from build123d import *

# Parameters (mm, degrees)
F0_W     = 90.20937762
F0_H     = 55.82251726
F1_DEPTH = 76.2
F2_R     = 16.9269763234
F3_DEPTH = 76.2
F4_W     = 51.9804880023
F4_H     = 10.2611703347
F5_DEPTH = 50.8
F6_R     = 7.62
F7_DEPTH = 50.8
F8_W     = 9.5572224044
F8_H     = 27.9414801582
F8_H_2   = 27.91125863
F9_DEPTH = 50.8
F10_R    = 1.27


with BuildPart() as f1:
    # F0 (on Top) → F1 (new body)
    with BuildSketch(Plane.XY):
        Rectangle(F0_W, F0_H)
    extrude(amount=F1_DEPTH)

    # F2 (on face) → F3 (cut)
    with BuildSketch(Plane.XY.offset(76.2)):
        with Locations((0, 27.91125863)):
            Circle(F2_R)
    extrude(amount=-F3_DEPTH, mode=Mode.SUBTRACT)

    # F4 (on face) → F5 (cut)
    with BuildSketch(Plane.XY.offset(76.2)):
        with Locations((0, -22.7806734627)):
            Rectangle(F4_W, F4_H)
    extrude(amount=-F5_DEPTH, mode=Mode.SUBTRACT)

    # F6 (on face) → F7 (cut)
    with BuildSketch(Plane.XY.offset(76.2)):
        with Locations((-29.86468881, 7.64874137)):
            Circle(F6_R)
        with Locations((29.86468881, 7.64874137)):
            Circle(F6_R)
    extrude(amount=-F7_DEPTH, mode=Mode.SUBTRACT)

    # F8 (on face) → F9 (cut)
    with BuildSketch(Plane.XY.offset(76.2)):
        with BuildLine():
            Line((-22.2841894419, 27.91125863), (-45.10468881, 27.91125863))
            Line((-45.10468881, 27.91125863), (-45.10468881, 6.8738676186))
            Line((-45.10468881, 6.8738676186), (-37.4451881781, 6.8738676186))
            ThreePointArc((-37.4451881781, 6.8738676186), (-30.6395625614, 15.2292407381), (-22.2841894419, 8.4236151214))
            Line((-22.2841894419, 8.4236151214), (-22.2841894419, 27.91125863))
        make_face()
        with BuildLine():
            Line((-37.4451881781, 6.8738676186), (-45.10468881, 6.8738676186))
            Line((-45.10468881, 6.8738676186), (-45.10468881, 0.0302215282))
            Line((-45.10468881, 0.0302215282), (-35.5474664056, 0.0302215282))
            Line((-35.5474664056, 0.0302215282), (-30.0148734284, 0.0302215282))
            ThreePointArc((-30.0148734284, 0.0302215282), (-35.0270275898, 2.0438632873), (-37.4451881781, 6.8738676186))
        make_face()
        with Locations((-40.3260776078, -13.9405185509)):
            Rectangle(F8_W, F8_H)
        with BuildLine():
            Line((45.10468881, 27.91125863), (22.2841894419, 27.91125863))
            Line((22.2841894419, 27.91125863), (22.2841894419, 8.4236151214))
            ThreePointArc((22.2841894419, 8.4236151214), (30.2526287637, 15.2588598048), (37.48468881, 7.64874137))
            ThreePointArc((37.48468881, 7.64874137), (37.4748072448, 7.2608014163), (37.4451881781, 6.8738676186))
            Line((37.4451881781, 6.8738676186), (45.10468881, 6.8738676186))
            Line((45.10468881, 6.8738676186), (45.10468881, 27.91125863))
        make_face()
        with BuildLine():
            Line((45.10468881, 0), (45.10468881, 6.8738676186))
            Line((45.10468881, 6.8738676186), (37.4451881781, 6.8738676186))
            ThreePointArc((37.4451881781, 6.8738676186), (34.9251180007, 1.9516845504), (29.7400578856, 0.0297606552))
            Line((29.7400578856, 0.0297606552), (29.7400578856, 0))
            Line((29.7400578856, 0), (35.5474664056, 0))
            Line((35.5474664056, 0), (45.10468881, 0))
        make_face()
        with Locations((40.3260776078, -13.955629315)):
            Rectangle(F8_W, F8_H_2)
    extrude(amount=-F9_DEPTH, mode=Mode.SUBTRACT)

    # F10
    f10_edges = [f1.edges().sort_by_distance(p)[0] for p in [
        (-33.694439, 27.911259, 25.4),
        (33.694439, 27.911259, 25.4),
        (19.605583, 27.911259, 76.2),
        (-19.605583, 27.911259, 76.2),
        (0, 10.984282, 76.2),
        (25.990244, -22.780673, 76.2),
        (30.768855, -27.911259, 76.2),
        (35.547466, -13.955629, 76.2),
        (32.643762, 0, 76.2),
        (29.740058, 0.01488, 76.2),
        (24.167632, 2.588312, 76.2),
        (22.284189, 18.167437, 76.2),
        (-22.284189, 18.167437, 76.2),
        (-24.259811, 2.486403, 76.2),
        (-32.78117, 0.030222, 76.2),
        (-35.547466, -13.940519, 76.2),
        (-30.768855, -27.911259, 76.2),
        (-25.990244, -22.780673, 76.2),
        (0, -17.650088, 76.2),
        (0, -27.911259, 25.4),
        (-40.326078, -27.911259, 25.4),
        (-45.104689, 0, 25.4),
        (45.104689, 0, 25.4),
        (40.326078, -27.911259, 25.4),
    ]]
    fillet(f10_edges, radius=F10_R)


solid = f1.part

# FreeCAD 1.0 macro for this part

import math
import FreeCAD as App
import Part
import Sketcher

V = App.Vector
Q = App.Units.Quantity


def edges_at(feature, points):
    """Names of the edges that pass closest to the given points."""
    edges = feature.Shape.Edges
    near = lambda p: min(range(len(edges)), key=lambda i: edges[i].distToShape(Part.Vertex(*p))[0])
    return sorted({f"Edge{near(p) + 1}" for p in points})


def add_polygon(sketch, points):
    """Adds a closed chain of lines whose ends are joined by coincident constraints."""
    first, n = sketch.GeometryCount, len(points)
    for a, b in zip(points, points[1:] + points[:1]):
        sketch.addGeometry(Part.LineSegment(App.Vector(*a, 0), App.Vector(*b, 0)), False)
    for i in range(n):
        sketch.addConstraint(Sketcher.Constraint("Coincident", first + i, 2, first + (i + 1) % n, 1))

doc = App.newDocument("Part")
params = doc.addObject("Spreadsheet::Sheet", "Params")
for row, (alias, value) in enumerate([
    ("pad1_length", "3 in"),
    ("pocket1_length", "3 in"),
    ("pocket2_length", "2 in"),
    ("sketch4_diameter", "0.6 in"),
    ("pocket3_length", "2 in"),
    ("sketch5_radius", "0.3 in"),
    ("sketch5_radius2", "0.3 in"),
    ("pocket4_length", "2 in"),
    ("fillet_radius", "0.05 in"),
], start=1):
    params.set(f"A{row}", alias)
    params.set(f"B{row}", "=" + value)
    params.setAlias(f"B{row}", alias)

body = doc.addObject("PartDesign::Body", "Body")

# Sketch on XY plane
sketch1 = body.newObject("Sketcher::SketchObject", "Sketch")
sketch1.AttachmentSupport = (doc.getObject("XY_Plane"), [""])
sketch1.MapMode = "FlatFace"
add_polygon(sketch1, [(-45, 28), (-45, -28), (45, -28), (45, 28)])  # lines 0-3
sketch1.addConstraint([
    Sketcher.Constraint("Vertical", 0),
    Sketcher.Constraint("Horizontal", 1),
    Sketcher.Constraint("Vertical", 2),
    Sketcher.Constraint("Horizontal", 3),
    Sketcher.Constraint("Symmetric", 0, 2, 2, 2, -1, 1),
    Sketcher.Constraint("DistanceX", 1, 1, 1, 2, 90.209378),
    Sketcher.Constraint("DistanceY", 0, 2, 0, 1, 55.822517),
])
pad1 = body.newObject("PartDesign::Pad", "Pad")
pad1.Profile = sketch1
pad1.setExpression("Length", "Params.pad1_length")

# Sketch on XY plane
sketch2 = body.newObject("Sketcher::SketchObject", "Sketch001")
sketch2.AttachmentSupport = (doc.getObject("XY_Plane"), [""])
sketch2.MapMode = "FlatFace"
sketch2.AttachmentOffset = App.Placement(V(0, 0, 3 * 25.4), App.Rotation())
sketch2.addGeometry(Part.Circle(V(0, 28, 0), V(0, 0, 1), 17), False)
sketch2.addConstraint([
    Sketcher.Constraint("PointOnObject", 0, 3, -2),
    Sketcher.Constraint("Diameter", 0, 33.853953),
    Sketcher.Constraint("DistanceY", -1, 1, 0, 3, 27.911259),
])
pocket1 = body.newObject("PartDesign::Pocket", "Pocket")
pocket1.Profile = sketch2
pocket1.setExpression("Length", "Params.pocket1_length")

# Sketch on XY plane
sketch3 = body.newObject("Sketcher::SketchObject", "Sketch002")
sketch3.AttachmentSupport = (doc.getObject("XY_Plane"), [""])
sketch3.MapMode = "FlatFace"
sketch3.AttachmentOffset = App.Placement(V(0, 0, 3 * 25.4), App.Rotation())
add_polygon(sketch3, [(-26, -18), (-26, -28), (26, -28), (26, -18)])  # lines 0-3
sketch3.addConstraint([
    Sketcher.Constraint("Vertical", 0),
    Sketcher.Constraint("Horizontal", 1),
    Sketcher.Constraint("Vertical", 2),
    Sketcher.Constraint("Horizontal", 3),
    Sketcher.Constraint("DistanceX", 1, 1, 1, 2, 51.980488),
    Sketcher.Constraint("DistanceY", 0, 2, 0, 1, 10.26117),
    Sketcher.Constraint("DistanceY", 0, 2, -1, 1, 27.911259),
    Sketcher.Constraint("DistanceX", 0, 2, -1, 1, 25.990244),
])
pocket2 = body.newObject("PartDesign::Pocket", "Pocket001")
pocket2.Profile = sketch3
pocket2.setExpression("Length", "Params.pocket2_length")

# Sketch on XY plane
sketch4 = body.newObject("Sketcher::SketchObject", "Sketch003")
sketch4.AttachmentSupport = (doc.getObject("XY_Plane"), [""])
sketch4.MapMode = "FlatFace"
sketch4.AttachmentOffset = App.Placement(V(0, 0, 3 * 25.4), App.Rotation())
sketch4.addGeometry([
    Part.Circle(V(-30, 8, 0), V(0, 0, 1), 8),
    Part.Circle(V(30, 8, 0), V(0, 0, 1), 8),
], False)
sketch4.addConstraint([
    Sketcher.Constraint("Equal", 0, 1),
    Sketcher.Constraint("Symmetric", 0, 3, 1, 3, -2),
    Sketcher.Constraint("Diameter", 0, Q("0.6 in")),
    Sketcher.Constraint("DistanceX", 0, 3, -1, 1, 29.864689),
    Sketcher.Constraint("DistanceY", -1, 1, 0, 3, 7.648741),
])
sketch4.setExpression("Constraints[2]", "Params.sketch4_diameter")
pocket3 = body.newObject("PartDesign::Pocket", "Pocket002")
pocket3.Profile = sketch4
pocket3.setExpression("Length", "Params.pocket3_length")

# Sketch on XY plane
sketch5 = body.newObject("Sketcher::SketchObject", "Sketch004")
sketch5.AttachmentSupport = (doc.getObject("XY_Plane"), [""])
sketch5.MapMode = "FlatFace"
sketch5.AttachmentOffset = App.Placement(V(0, 0, 3 * 25.4), App.Rotation())
sketch5.addGeometry([
    Part.LineSegment(V(-22.284189, 27.911259, 0), V(-45.104689, 27.911259, 0)),  # 0
    Part.LineSegment(V(-45.104689, 27.911259, 0), V(-45.104689, -27.911259, 0)),  # 1
    Part.LineSegment(V(-45.104689, -27.911259, 0), V(-35.547466, -27.911259, 0)),  # 2
    Part.LineSegment(V(-35.547466, -27.911259, 0), V(-35.547466, 0.030222, 0)),  # 3
    Part.LineSegment(V(-35.547466, 0.030222, 0), V(-30.014873, 0.030222, 0)),  # 4
    Part.ArcOfCircle(Part.Circle(V(-29.864689, 7.648741, 0), V(0, 0, 1), 7.62), math.radians(-174.163534), math.radians(-91.129331)),  # 5
    Part.ArcOfCircle(Part.Circle(V(-29.864689, 7.648741, 0), V(0, 0, 1), 7.62), math.radians(5.836466), math.radians(185.836466)),  # 6
    Part.LineSegment(V(-22.284189, 8.423615, 0), V(-22.284189, 27.911259, 0)),  # 7
    Part.LineSegment(V(45.104689, 27.911259, 0), V(22.284189, 27.911259, 0)),  # 8
    Part.LineSegment(V(22.284189, 27.911259, 0), V(22.284189, 8.423615, 0)),  # 9
    Part.ArcOfCircle(Part.Circle(V(29.864689, 7.648741, 0), V(0, 0, 1), 7.62), math.radians(0), math.radians(174.163534)),  # 10
    Part.ArcOfCircle(Part.Circle(V(29.864689, 7.648741, 0), V(0, 0, 1), 7.62), math.radians(-5.836466), math.radians(0)),  # 11
    Part.ArcOfCircle(Part.Circle(V(29.864689, 7.648741, 0), V(0, 0, 1), 7.62), math.radians(-90.937158), math.radians(-5.836466)),  # 12
    Part.LineSegment(V(29.740058, 0.029761, 0), V(29.740058, 0, 0)),  # 13
    Part.LineSegment(V(29.740058, 0, 0), V(35.547466, 0, 0)),  # 14
    Part.LineSegment(V(35.547466, 0, 0), V(35.547466, -27.911259, 0)),  # 15
    Part.LineSegment(V(35.547466, -27.911259, 0), V(45.104689, -27.911259, 0)),  # 16
    Part.LineSegment(V(45.104689, -27.911259, 0), V(45.104689, 27.911259, 0)),  # 17
], False)
sketch5.addConstraint([
    Sketcher.Constraint("Coincident", 0, 2, 1, 1),
    Sketcher.Constraint("Coincident", 1, 2, 2, 1),
    Sketcher.Constraint("Coincident", 2, 2, 3, 1),
    Sketcher.Constraint("Coincident", 3, 2, 4, 1),
    Sketcher.Constraint("Coincident", 4, 2, 5, 2),
    Sketcher.Constraint("Coincident", 5, 1, 6, 2),
    Sketcher.Constraint("Coincident", 6, 1, 7, 1),
    Sketcher.Constraint("Coincident", 7, 2, 0, 1),
    Sketcher.Constraint("Coincident", 8, 2, 9, 1),
    Sketcher.Constraint("Coincident", 9, 2, 10, 2),
    Sketcher.Constraint("Coincident", 10, 1, 11, 2),
    Sketcher.Constraint("Coincident", 11, 1, 12, 2),
    Sketcher.Constraint("Coincident", 12, 1, 13, 1),
    Sketcher.Constraint("Coincident", 13, 2, 14, 1),
    Sketcher.Constraint("Coincident", 14, 2, 15, 1),
    Sketcher.Constraint("Coincident", 15, 2, 16, 1),
    Sketcher.Constraint("Coincident", 16, 2, 17, 1),
    Sketcher.Constraint("Coincident", 17, 2, 8, 1),
    Sketcher.Constraint("Horizontal", 0),
    Sketcher.Constraint("Vertical", 1),
    Sketcher.Constraint("Horizontal", 2),
    Sketcher.Constraint("Vertical", 3),
    Sketcher.Constraint("Horizontal", 4),
    Sketcher.Constraint("Vertical", 7),
    Sketcher.Constraint("Horizontal", 8),
    Sketcher.Constraint("Vertical", 9),
    Sketcher.Constraint("Vertical", 13),
    Sketcher.Constraint("Horizontal", 14),
    Sketcher.Constraint("Vertical", 15),
    Sketcher.Constraint("Horizontal", 16),
    Sketcher.Constraint("Vertical", 17),
    Sketcher.Constraint("Coincident", 6, 3, 5, 3),
    Sketcher.Constraint("Coincident", 11, 3, 10, 3),
    Sketcher.Constraint("Coincident", 12, 3, 10, 3),
    Sketcher.Constraint("PointOnObject", 13, 2, -1),
    Sketcher.Constraint("Radius", 5, Q("0.3 in")),
    Sketcher.Constraint("Radius", 10, Q("0.3 in")),
    Sketcher.Constraint("DistanceX", 0, 2, 5, 3, Q("0.6 in")),
    Sketcher.Constraint("DistanceY", 1, 2, 5, 3, Q("1.4 in")),
    Sketcher.Constraint("DistanceY", 1, 2, 11, 3, Q("1.4 in")),
    Sketcher.Constraint("DistanceY", 15, 2, 10, 1, Q("1.4 in")),
    Sketcher.Constraint("DistanceX", 10, 1, 17, 2, Q("0.3 in")),
    Sketcher.Constraint("DistanceX", 0, 2, 0, 1, 22.820499),
    Sketcher.Constraint("DistanceX", 8, 2, 8, 1, 22.820499),
    Sketcher.Constraint("DistanceX", 14, 1, 14, 2, 5.807409),
    Sketcher.Constraint("DistanceY", 3, 1, 3, 2, 27.94148),
    Sketcher.Constraint("DistanceY", 13, 2, 13, 1, 0.029761),
    Sketcher.Constraint("DistanceY", 15, 2, 15, 1, 27.911259),
    Sketcher.Constraint("DistanceX", 5, 1, 5, 3, 7.580499),
    Sketcher.Constraint("DistanceX", 11, 1, 10, 1, 0.039501),
    Sketcher.Constraint("DistanceX", 2, 1, 2, 2, 9.557222),
    Sketcher.Constraint("DistanceX", 16, 1, 16, 2, 9.557222),
    Sketcher.Constraint("DistanceY", 1, 2, 1, 1, 55.822517),
    Sketcher.Constraint("DistanceY", 9, 2, 9, 1, 19.487644),
    Sketcher.Constraint("DistanceX", 5, 3, -1, 1, 29.864689),
    Sketcher.Constraint("DistanceX", -1, 1, 10, 3, 29.864689),
])
sketch5.setExpression("Constraints[35]", "Params.sketch5_radius")
sketch5.setExpression("Constraints[36]", "Params.sketch5_radius2")
pocket4 = body.newObject("PartDesign::Pocket", "Pocket003")
pocket4.Profile = sketch5
pocket4.setExpression("Length", "Params.pocket4_length")
doc.recompute()

fillet = body.newObject("PartDesign::Fillet", "Fillet")
fillet.Base = (pocket4, edges_at(pocket4, [
    (-33.694, 27.911, 25.4),
    (33.694, 27.911, 25.4),
    (19.606, 27.911, 76.2),
    (-19.606, 27.911, 76.2),
    (0, 10.984, 76.2),
    (25.99, -22.781, 76.2),
    (30.769, -27.911, 76.2),
    (35.547, -13.956, 76.2),
    (32.644, 0, 76.2),
    (29.74, 0.015, 76.2),
    (24.168, 2.588, 76.2),
    (22.284, 18.167, 76.2),
    (-22.284, 18.167, 76.2),
    (-24.26, 2.486, 76.2),
    (-32.781, 0.03, 76.2),
    (-35.547, -13.941, 76.2),
    (-30.769, -27.911, 76.2),
    (-25.99, -22.781, 76.2),
    (0, -17.65, 76.2),
    (0, -27.911, 25.4),
    (-40.326, -27.911, 25.4),
    (-45.105, 0, 25.4),
    (45.105, 0, 25.4),
    (40.326, -27.911, 25.4),
]))
fillet.setExpression("Radius", "Params.fillet_radius")

doc.recompute()
